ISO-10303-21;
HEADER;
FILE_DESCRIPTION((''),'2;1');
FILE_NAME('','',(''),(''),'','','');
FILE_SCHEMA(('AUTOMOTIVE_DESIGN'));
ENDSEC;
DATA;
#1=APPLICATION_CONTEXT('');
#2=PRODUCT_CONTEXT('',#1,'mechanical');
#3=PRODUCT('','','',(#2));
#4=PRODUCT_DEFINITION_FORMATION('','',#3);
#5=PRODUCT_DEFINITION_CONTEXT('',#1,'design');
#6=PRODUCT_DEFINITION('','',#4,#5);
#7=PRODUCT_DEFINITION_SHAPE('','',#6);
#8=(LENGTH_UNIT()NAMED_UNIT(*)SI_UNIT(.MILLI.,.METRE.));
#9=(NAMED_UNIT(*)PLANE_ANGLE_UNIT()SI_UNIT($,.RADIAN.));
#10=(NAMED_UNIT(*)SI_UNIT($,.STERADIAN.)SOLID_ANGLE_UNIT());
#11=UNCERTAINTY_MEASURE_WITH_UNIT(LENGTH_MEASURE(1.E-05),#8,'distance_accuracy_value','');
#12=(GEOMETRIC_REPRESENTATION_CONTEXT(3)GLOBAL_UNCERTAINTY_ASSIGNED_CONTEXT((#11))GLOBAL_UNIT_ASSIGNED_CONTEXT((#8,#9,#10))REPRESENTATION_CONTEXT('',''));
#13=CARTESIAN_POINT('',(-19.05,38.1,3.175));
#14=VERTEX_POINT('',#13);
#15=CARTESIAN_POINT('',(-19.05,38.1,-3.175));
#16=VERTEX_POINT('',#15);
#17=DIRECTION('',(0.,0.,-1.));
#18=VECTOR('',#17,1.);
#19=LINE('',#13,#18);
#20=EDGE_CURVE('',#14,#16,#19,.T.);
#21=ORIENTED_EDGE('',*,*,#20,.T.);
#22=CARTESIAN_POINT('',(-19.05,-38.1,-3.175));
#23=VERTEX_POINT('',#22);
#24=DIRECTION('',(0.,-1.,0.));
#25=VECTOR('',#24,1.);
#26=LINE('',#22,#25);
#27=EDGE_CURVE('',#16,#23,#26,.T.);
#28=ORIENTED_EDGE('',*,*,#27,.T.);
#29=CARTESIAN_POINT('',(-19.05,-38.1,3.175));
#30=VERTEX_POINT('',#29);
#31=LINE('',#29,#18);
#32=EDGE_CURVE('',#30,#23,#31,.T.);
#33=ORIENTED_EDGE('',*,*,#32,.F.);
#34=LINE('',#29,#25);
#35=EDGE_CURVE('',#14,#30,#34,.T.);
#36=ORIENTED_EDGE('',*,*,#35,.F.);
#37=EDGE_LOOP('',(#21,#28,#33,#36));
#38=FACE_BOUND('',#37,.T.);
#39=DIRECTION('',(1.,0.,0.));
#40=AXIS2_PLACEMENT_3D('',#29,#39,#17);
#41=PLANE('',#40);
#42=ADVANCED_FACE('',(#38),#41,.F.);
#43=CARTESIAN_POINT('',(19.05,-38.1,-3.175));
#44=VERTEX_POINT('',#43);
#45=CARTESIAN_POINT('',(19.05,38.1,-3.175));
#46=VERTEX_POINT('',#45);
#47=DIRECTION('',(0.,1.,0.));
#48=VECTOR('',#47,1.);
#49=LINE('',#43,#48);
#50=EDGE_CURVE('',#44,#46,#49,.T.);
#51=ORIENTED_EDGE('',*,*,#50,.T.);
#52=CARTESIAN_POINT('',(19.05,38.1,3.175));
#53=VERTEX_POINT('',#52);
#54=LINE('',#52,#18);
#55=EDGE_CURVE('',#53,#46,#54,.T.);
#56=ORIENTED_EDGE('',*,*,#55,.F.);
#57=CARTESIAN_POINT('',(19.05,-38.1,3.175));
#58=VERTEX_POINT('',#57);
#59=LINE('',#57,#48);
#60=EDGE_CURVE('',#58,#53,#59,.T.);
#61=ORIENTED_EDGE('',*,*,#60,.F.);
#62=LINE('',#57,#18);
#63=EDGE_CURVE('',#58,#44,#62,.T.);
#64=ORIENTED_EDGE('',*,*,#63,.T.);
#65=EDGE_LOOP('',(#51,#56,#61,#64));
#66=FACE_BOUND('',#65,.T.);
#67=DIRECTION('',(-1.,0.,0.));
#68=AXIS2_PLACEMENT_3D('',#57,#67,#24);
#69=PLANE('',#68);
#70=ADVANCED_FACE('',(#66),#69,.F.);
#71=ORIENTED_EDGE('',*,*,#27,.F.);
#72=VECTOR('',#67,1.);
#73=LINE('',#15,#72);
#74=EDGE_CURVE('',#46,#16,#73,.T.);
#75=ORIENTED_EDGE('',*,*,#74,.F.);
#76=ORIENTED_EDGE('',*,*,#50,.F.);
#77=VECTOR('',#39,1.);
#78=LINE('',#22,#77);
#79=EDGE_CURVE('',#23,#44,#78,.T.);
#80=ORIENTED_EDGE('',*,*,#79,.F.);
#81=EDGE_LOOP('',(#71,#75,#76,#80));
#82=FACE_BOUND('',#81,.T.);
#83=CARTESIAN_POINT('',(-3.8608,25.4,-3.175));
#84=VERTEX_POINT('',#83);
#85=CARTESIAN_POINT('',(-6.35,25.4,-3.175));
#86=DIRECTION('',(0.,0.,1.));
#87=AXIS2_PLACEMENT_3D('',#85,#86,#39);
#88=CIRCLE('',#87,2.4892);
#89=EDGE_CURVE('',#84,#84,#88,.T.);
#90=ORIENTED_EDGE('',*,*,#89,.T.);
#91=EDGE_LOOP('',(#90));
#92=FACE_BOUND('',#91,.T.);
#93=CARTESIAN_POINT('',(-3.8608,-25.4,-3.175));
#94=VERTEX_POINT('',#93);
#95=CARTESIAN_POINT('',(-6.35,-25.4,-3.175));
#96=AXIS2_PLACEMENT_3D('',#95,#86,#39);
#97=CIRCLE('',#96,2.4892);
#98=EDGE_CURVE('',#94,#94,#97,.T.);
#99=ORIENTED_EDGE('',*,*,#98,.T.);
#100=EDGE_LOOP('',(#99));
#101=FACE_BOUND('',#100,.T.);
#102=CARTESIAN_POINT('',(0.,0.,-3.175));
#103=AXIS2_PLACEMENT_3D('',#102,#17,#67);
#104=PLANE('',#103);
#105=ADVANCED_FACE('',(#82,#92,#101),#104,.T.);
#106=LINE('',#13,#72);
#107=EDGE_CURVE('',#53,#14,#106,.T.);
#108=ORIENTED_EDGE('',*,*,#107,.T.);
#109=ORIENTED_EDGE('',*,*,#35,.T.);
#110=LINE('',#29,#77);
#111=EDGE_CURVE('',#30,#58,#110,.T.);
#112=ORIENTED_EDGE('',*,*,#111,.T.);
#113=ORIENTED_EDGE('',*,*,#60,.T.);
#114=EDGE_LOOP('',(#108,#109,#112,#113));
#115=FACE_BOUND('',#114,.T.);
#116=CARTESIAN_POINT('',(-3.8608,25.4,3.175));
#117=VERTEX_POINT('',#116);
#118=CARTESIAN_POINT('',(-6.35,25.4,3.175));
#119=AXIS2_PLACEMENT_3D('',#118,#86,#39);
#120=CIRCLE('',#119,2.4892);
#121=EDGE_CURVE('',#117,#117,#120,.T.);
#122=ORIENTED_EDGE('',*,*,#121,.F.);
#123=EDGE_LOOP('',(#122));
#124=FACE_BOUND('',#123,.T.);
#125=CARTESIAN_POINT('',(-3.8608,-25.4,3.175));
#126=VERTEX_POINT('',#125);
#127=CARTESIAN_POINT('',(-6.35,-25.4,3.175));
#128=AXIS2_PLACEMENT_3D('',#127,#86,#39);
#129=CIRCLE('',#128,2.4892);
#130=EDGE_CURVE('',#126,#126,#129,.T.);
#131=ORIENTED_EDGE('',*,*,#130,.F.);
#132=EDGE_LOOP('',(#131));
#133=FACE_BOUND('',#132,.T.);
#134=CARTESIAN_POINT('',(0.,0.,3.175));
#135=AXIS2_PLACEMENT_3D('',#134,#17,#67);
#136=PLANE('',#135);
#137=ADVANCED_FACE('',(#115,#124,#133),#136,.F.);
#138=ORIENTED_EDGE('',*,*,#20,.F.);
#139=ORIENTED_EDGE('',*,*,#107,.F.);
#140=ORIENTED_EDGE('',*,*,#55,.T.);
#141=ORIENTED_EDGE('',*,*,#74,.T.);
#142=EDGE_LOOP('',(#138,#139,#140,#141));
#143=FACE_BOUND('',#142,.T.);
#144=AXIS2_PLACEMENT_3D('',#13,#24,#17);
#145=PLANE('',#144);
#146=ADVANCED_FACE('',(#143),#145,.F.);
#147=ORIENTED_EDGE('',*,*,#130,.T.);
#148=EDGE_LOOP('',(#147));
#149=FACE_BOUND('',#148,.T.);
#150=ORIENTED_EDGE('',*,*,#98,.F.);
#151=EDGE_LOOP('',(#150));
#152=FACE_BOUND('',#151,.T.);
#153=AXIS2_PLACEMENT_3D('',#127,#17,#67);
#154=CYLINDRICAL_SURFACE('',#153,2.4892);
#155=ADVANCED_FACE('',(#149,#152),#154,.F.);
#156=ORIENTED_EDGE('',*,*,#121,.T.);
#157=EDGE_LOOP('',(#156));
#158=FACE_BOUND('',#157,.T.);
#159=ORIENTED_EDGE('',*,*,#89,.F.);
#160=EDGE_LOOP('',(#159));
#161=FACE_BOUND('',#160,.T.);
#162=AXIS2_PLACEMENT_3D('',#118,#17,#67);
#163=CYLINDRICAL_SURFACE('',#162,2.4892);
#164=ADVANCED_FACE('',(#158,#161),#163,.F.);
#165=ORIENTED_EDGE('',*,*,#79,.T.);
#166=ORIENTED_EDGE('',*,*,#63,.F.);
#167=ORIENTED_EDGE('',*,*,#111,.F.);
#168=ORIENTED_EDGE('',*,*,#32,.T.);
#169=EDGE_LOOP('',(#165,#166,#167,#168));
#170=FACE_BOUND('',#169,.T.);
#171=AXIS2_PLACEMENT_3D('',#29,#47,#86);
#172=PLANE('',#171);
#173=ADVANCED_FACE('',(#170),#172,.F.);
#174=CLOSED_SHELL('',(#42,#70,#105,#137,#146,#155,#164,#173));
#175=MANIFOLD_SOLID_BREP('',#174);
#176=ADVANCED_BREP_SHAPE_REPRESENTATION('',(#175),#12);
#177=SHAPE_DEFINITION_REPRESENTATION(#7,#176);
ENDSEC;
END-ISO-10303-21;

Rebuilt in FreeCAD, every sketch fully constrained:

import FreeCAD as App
import Part
import Sketcher
Q = App.Units.Quantity


def add_polygon(sketch, points):
    """Adds a closed chain of lines whose ends are joined by coincident constraints."""
    first, n = sketch.GeometryCount, len(points)
    for a, b in zip(points, points[1:] + points[:1]):
        sketch.addGeometry(Part.LineSegment(App.Vector(*a, 0), App.Vector(*b, 0)), False)
    for i in range(n):
        sketch.addConstraint(Sketcher.Constraint("Coincident", first + i, 2, first + (i + 1) % n, 1))

doc = App.newDocument("Part")
body = doc.addObject("PartDesign::Body", "Body")

# Sketch on XY plane
sketch1 = doc.addObject("Sketcher::SketchObject", "Sketch")
body.addObject(sketch1)
sketch1.AttachmentSupport = (doc.XY_Plane, [""])
sketch1.MapMode = "FlatFace"
add_polygon(sketch1, [(-19.1, 38.1), (-19.1, -38.1), (19.1, -38.1), (19.1, 38.1)])  # lines 0-3
sketch1.addGeometry(Part.Circle(App.Vector(-6.3, -25.4, 0), App.Vector(0, 0, 1), 2.5), False)  # 4
sketch1.addGeometry(Part.Circle(App.Vector(-6.3, 25.4, 0), App.Vector(0, 0, 1), 2.5), False)  # 5
sketch1.addConstraint(Sketcher.Constraint("Vertical", 0))
sketch1.addConstraint(Sketcher.Constraint("Horizontal", 1))
sketch1.addConstraint(Sketcher.Constraint("Vertical", 2))
sketch1.addConstraint(Sketcher.Constraint("Horizontal", 3))
sketch1.addConstraint(Sketcher.Constraint("Equal", 4, 5))
sketch1.addConstraint(Sketcher.Constraint("Symmetric", 0, 2, 2, 2, -1, 1))
sketch1.addConstraint(Sketcher.Constraint("Symmetric", 4, 3, 5, 3, -1))
sketch1.addConstraint(Sketcher.Constraint("DistanceY", 0, 2, 0, 1, Q("3 in")))
sketch1.addConstraint(Sketcher.Constraint("Diameter", 4, Q("0.196 in")))
sketch1.addConstraint(Sketcher.Constraint("DistanceX", 1, 1, 1, 2, Q("1.5 in")))
sketch1.addConstraint(Sketcher.Constraint("DistanceY", 4, 3, -1, 1, Q("1 in")))
sketch1.addConstraint(Sketcher.Constraint("DistanceX", 4, 3, 1, 2, Q("1 in")))
pad1 = doc.addObject("PartDesign::Pad", "Pad")
body.addObject(pad1)
pad1.Profile = sketch1
pad1.Length = Q("0.25 in")
pad1.Midplane = True

doc.recompute()
